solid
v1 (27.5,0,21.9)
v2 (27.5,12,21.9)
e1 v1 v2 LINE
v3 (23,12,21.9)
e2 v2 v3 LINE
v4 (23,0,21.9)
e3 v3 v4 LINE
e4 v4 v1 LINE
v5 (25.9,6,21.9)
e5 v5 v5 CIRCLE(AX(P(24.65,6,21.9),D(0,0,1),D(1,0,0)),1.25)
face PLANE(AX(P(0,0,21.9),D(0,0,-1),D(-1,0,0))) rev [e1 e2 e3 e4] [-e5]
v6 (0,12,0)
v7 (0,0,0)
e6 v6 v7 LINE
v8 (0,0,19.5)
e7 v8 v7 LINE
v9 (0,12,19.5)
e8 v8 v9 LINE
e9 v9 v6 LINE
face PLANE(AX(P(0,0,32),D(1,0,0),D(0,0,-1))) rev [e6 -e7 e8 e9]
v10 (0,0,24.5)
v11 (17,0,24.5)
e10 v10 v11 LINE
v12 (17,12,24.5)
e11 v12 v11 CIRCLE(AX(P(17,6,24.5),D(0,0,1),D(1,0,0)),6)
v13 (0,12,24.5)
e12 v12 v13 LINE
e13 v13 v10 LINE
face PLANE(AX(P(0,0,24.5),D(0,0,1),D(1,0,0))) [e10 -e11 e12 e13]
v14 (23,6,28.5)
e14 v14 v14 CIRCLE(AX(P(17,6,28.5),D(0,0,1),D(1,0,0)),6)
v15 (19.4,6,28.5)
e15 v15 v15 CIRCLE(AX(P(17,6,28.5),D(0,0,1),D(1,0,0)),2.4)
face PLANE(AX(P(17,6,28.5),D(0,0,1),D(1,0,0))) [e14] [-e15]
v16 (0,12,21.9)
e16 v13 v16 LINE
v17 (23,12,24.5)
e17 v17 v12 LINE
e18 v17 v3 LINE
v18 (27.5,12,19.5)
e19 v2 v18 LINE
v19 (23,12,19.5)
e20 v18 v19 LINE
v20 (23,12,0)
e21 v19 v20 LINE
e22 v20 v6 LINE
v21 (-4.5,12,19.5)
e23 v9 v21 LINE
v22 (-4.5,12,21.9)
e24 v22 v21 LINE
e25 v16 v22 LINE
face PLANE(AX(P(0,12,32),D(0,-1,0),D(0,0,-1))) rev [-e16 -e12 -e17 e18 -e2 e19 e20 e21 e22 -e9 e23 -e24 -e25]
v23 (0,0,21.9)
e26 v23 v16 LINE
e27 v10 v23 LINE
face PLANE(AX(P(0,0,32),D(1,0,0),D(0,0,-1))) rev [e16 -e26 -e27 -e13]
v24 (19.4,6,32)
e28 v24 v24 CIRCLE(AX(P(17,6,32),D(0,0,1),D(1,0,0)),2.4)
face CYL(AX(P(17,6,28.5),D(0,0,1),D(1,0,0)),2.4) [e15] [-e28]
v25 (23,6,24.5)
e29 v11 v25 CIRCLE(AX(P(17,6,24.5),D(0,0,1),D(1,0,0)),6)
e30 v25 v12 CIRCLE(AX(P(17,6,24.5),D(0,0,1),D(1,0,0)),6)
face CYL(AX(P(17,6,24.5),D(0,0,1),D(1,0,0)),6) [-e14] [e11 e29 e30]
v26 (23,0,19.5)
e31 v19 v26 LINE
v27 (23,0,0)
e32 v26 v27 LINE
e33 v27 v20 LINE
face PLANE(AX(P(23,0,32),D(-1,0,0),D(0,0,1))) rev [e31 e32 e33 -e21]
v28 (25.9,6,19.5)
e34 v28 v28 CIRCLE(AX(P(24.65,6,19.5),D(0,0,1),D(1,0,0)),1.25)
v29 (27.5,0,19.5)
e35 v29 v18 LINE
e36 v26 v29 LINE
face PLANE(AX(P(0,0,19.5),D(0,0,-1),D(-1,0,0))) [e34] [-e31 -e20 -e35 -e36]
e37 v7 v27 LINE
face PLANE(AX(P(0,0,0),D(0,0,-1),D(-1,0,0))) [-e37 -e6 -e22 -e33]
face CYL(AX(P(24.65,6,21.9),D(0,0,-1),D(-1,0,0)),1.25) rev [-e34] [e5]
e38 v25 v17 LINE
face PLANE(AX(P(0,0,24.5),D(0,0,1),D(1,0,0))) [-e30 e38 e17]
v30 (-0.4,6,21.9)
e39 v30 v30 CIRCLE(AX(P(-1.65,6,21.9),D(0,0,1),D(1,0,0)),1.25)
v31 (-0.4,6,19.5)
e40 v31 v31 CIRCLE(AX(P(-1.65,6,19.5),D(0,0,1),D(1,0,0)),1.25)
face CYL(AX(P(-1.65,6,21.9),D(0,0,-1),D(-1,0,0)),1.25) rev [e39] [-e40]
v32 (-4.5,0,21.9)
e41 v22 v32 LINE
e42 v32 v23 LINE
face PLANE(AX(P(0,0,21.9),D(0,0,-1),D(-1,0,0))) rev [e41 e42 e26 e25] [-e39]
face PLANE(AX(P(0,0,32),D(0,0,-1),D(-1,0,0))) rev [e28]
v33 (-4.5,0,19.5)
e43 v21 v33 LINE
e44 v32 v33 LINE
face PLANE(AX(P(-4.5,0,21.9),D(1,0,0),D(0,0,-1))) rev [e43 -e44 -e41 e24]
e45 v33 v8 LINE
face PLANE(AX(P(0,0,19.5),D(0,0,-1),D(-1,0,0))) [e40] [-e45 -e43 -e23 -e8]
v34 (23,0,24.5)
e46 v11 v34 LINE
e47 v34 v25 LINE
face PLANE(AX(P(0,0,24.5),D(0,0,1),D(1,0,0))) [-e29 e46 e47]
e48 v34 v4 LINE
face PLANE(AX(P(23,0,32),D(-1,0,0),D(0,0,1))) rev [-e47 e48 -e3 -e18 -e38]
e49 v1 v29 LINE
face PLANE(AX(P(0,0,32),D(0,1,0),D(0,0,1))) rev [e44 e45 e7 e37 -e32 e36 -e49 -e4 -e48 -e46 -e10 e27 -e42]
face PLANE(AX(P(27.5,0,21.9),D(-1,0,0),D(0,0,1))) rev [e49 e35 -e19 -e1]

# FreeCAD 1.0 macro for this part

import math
import FreeCAD as App
import Part
import Sketcher
from FreeCAD import Vector

doc = App.newDocument("Part")
params = doc.addObject("Spreadsheet::Sheet", "Params")
for row, (alias, value) in enumerate([
    ("sketch1_width", "23 mm"),
    ("sketch1_height", "12 mm"),
    ("pad1_length", "32 mm"),
    ("sketch2_radius", "6 mm"),
    ("sketch2_width", "17 mm"),
    ("pocket1_length", "7.5 mm"),
    ("sketch3_diameter", "12 mm"),
    ("sketch3_diameter2", "4.8 mm"),
    ("pocket2_length", "3.5 mm"),
    ("sketch4_diameter", "2.5 mm"),
    ("sketch4_width", "32 mm"),
    ("sketch4_height", "12 mm"),
    ("pad2_length", "2.4 mm"),
], start=1):
    params.set(f"A{row}", alias)
    params.set(f"B{row}", "=" + value)
    params.setAlias(f"B{row}", alias)

body = doc.addObject("PartDesign::Body", "Body")

# Sketch on XY plane
sketch1 = body.newObject("Sketcher::SketchObject", "Sketch")
sketch1.AttachmentSupport = (doc.getObject("XY_Plane"), [""])
sketch1.MapMode = "FlatFace"
sketch1.addGeometry(Part.LineSegment(Vector(0, 12, 0), Vector(0, 0, 0)), False)
sketch1.addGeometry(Part.LineSegment(Vector(0, 0, 0), Vector(23, 0, 0)), False)
sketch1.addGeometry(Part.LineSegment(Vector(23, 0, 0), Vector(23, 12, 0)), False)
sketch1.addGeometry(Part.LineSegment(Vector(23, 12, 0), Vector(0, 12, 0)), False)
sketch1.addConstraint(Sketcher.Constraint("Coincident", 0, 2, 1, 1))
sketch1.addConstraint(Sketcher.Constraint("Coincident", 1, 2, 2, 1))
sketch1.addConstraint(Sketcher.Constraint("Coincident", 2, 2, 3, 1))
sketch1.addConstraint(Sketcher.Constraint("Coincident", 3, 2, 0, 1))
sketch1.addConstraint(Sketcher.Constraint("Vertical", 0))
sketch1.addConstraint(Sketcher.Constraint("Horizontal", 1))
sketch1.addConstraint(Sketcher.Constraint("Vertical", 2))
sketch1.addConstraint(Sketcher.Constraint("Horizontal", 3))
sketch1.addConstraint(Sketcher.Constraint("Coincident", 0, 2, -1, 1))
sketch1.addConstraint(Sketcher.Constraint("DistanceX", 1, 1, 1, 2, 23.0))
sketch1.addConstraint(Sketcher.Constraint("DistanceY", 0, 2, 0, 1, 12.0))
sketch1.setExpression("Constraints[9]", "Params.sketch1_width")
sketch1.setExpression("Constraints[10]", "Params.sketch1_height")
pad1 = body.newObject("PartDesign::Pad", "Pad")
pad1.Profile = sketch1
pad1.setExpression("Length", "Params.pad1_length")

# Sketch on XY plane
sketch2 = body.newObject("Sketcher::SketchObject", "Sketch001")
sketch2.AttachmentSupport = (doc.getObject("XY_Plane"), [""])
sketch2.MapMode = "FlatFace"
sketch2.AttachmentOffset = App.Placement(Vector(0, 0, 32), App.Rotation())
sketch2.addGeometry(Part.LineSegment(Vector(17, 12, 0), Vector(0, 12, 0)), False)
sketch2.addGeometry(Part.LineSegment(Vector(0, 12, 0), Vector(0, 0, 0)), False)
sketch2.addGeometry(Part.LineSegment(Vector(0, 0, 0), Vector(17, 0, 0)), False)
sketch2.addGeometry(Part.ArcOfCircle(Part.Circle(Vector(17, 6, 0), Vector(0, 0, 1), 6), math.radians(90), math.radians(270)), False)
sketch2.addGeometry(Part.LineSegment(Vector(23, 12, 0), Vector(17, 12, 0)), False)
sketch2.addGeometry(Part.ArcOfCircle(Part.Circle(Vector(17, 6, 0), Vector(0, 0, 1), 6), math.radians(0), math.radians(90)), False)
sketch2.addGeometry(Part.LineSegment(Vector(23, 6, 0), Vector(23, 12, 0)), False)
sketch2.addGeometry(Part.ArcOfCircle(Part.Circle(Vector(17, 6, 0), Vector(0, 0, 1), 6), math.radians(-90), math.radians(0)), False)
sketch2.addGeometry(Part.LineSegment(Vector(17, 0, 0), Vector(23, 0, 0)), False)
sketch2.addGeometry(Part.LineSegment(Vector(23, 0, 0), Vector(23, 6, 0)), False)
sketch2.addConstraint(Sketcher.Constraint("Coincident", 0, 2, 1, 1))
sketch2.addConstraint(Sketcher.Constraint("Coincident", 1, 2, 2, 1))
sketch2.addConstraint(Sketcher.Constraint("Tangent", 2, 2, 3, 2))
sketch2.addConstraint(Sketcher.Constraint("Tangent", 3, 1, 0, 1))
sketch2.addConstraint(Sketcher.Constraint("Tangent", 4, 2, 5, 2))
sketch2.addConstraint(Sketcher.Constraint("Tangent", 5, 1, 6, 1))
sketch2.addConstraint(Sketcher.Constraint("Coincident", 6, 2, 4, 1))
sketch2.addConstraint(Sketcher.Constraint("Tangent", 7, 1, 8, 1))
sketch2.addConstraint(Sketcher.Constraint("Coincident", 8, 2, 9, 1))
sketch2.addConstraint(Sketcher.Constraint("Tangent", 9, 2, 7, 2))
sketch2.addConstraint(Sketcher.Constraint("Horizontal", 0))
sketch2.addConstraint(Sketcher.Constraint("Vertical", 1))
sketch2.addConstraint(Sketcher.Constraint("Horizontal", 2))
sketch2.addConstraint(Sketcher.Constraint("Horizontal", 4))
sketch2.addConstraint(Sketcher.Constraint("Vertical", 6))
sketch2.addConstraint(Sketcher.Constraint("Horizontal", 8))
sketch2.addConstraint(Sketcher.Constraint("Vertical", 9))
sketch2.addConstraint(Sketcher.Constraint("Coincident", 1, 2, -1, 1))
sketch2.addConstraint(Sketcher.Constraint("Coincident", 5, 3, 3, 3))
sketch2.addConstraint(Sketcher.Constraint("Coincident", 7, 3, 3, 3))
sketch2.addConstraint(Sketcher.Constraint("Equal", 3, 5))
sketch2.addConstraint(Sketcher.Constraint("Equal", 5, 7))
sketch2.addConstraint(Sketcher.Constraint("Radius", 3, 6.0))
sketch2.addConstraint(Sketcher.Constraint("DistanceX", 0, 2, 0, 1, 17.0))
sketch2.setExpression("Constraints[22]", "Params.sketch2_radius")
sketch2.setExpression("Constraints[23]", "Params.sketch2_width")
pocket1 = body.newObject("PartDesign::Pocket", "Pocket")
pocket1.Profile = sketch2
pocket1.setExpression("Length", "Params.pocket1_length")

# Sketch on XY plane
sketch3 = body.newObject("Sketcher::SketchObject", "Sketch002")
sketch3.AttachmentSupport = (doc.getObject("XY_Plane"), [""])
sketch3.MapMode = "FlatFace"
sketch3.AttachmentOffset = App.Placement(Vector(0, 0, 32), App.Rotation())
sketch3.addGeometry(Part.Circle(Vector(17, 6, 0), Vector(0, 0, 1), 6), False)
sketch3.addGeometry(Part.Circle(Vector(17, 6, 0), Vector(0, 0, 1), 2.4), False)
sketch3.addConstraint(Sketcher.Constraint("Coincident", 1, 3, 0, 3))
sketch3.addConstraint(Sketcher.Constraint("Diameter", 0, 12.0))
sketch3.addConstraint(Sketcher.Constraint("Diameter", 1, 4.8))
sketch3.addConstraint(Sketcher.Constraint("DistanceX", -1, 1, 0, 3, 17.0))
sketch3.addConstraint(Sketcher.Constraint("DistanceY", -1, 1, 0, 3, 6.0))
sketch3.setExpression("Constraints[1]", "Params.sketch3_diameter")
sketch3.setExpression("Constraints[2]", "Params.sketch3_diameter2")
pocket2 = body.newObject("PartDesign::Pocket", "Pocket001")
pocket2.Profile = sketch3
pocket2.setExpression("Length", "Params.pocket2_length")

# Sketch on XY plane
sketch4 = body.newObject("Sketcher::SketchObject", "Sketch003")
sketch4.AttachmentSupport = (doc.getObject("XY_Plane"), [""])
sketch4.MapMode = "FlatFace"
sketch4.AttachmentOffset = App.Placement(Vector(0, 0, 19.5), App.Rotation())
sketch4.addGeometry(Part.LineSegment(Vector(-4.5, 12, 0), Vector(-4.5, 0, 0)), False)
sketch4.addGeometry(Part.LineSegment(Vector(-4.5, 0, 0), Vector(27.5, 0, 0)), False)
sketch4.addGeometry(Part.LineSegment(Vector(27.5, 0, 0), Vector(27.5, 12, 0)), False)
sketch4.addGeometry(Part.LineSegment(Vector(27.5, 12, 0), Vector(-4.5, 12, 0)), False)
sketch4.addGeometry(Part.Circle(Vector(-1.6, 6, 0), Vector(0, 0, 1), 1.2), False)
sketch4.addGeometry(Part.Circle(Vector(24.6, 6, 0), Vector(0, 0, 1), 1.2), False)
sketch4.addConstraint(Sketcher.Constraint("Coincident", 0, 2, 1, 1))
sketch4.addConstraint(Sketcher.Constraint("Coincident", 1, 2, 2, 1))
sketch4.addConstraint(Sketcher.Constraint("Coincident", 2, 2, 3, 1))
sketch4.addConstraint(Sketcher.Constraint("Coincident", 3, 2, 0, 1))
sketch4.addConstraint(Sketcher.Constraint("Vertical", 0))
sketch4.addConstraint(Sketcher.Constraint("Horizontal", 1))
sketch4.addConstraint(Sketcher.Constraint("Vertical", 2))
sketch4.addConstraint(Sketcher.Constraint("Horizontal", 3))
sketch4.addConstraint(Sketcher.Constraint("Equal", 4, 5))
sketch4.addConstraint(Sketcher.Constraint("PointOnObject", 0, 2, -1))
sketch4.addConstraint(Sketcher.Constraint("Horizontal", 4, 3, 5, 3))
sketch4.addConstraint(Sketcher.Constraint("Diameter", 4, 2.5))
sketch4.addConstraint(Sketcher.Constraint("DistanceX", 1, 1, 1, 2, 32.0))
sketch4.addConstraint(Sketcher.Constraint("DistanceY", 0, 2, 0, 1, 12.0))
sketch4.addConstraint(Sketcher.Constraint("DistanceY", -1, 1, 4, 3, 6.0))
sketch4.addConstraint(Sketcher.Constraint("DistanceX", 0, 2, -1, 1, 4.5))
sketch4.addConstraint(Sketcher.Constraint("DistanceX", 4, 3, 5, 3, 26.3))
sketch4.addConstraint(Sketcher.Constraint("DistanceX", 4, 3, -1, 1, 1.65))
sketch4.setExpression("Constraints[11]", "Params.sketch4_diameter")
sketch4.setExpression("Constraints[12]", "Params.sketch4_width")
sketch4.setExpression("Constraints[13]", "Params.sketch4_height")
pad2 = body.newObject("PartDesign::Pad", "Pad001")
pad2.Profile = sketch4
pad2.setExpression("Length", "Params.pad2_length")

doc.recompute()
